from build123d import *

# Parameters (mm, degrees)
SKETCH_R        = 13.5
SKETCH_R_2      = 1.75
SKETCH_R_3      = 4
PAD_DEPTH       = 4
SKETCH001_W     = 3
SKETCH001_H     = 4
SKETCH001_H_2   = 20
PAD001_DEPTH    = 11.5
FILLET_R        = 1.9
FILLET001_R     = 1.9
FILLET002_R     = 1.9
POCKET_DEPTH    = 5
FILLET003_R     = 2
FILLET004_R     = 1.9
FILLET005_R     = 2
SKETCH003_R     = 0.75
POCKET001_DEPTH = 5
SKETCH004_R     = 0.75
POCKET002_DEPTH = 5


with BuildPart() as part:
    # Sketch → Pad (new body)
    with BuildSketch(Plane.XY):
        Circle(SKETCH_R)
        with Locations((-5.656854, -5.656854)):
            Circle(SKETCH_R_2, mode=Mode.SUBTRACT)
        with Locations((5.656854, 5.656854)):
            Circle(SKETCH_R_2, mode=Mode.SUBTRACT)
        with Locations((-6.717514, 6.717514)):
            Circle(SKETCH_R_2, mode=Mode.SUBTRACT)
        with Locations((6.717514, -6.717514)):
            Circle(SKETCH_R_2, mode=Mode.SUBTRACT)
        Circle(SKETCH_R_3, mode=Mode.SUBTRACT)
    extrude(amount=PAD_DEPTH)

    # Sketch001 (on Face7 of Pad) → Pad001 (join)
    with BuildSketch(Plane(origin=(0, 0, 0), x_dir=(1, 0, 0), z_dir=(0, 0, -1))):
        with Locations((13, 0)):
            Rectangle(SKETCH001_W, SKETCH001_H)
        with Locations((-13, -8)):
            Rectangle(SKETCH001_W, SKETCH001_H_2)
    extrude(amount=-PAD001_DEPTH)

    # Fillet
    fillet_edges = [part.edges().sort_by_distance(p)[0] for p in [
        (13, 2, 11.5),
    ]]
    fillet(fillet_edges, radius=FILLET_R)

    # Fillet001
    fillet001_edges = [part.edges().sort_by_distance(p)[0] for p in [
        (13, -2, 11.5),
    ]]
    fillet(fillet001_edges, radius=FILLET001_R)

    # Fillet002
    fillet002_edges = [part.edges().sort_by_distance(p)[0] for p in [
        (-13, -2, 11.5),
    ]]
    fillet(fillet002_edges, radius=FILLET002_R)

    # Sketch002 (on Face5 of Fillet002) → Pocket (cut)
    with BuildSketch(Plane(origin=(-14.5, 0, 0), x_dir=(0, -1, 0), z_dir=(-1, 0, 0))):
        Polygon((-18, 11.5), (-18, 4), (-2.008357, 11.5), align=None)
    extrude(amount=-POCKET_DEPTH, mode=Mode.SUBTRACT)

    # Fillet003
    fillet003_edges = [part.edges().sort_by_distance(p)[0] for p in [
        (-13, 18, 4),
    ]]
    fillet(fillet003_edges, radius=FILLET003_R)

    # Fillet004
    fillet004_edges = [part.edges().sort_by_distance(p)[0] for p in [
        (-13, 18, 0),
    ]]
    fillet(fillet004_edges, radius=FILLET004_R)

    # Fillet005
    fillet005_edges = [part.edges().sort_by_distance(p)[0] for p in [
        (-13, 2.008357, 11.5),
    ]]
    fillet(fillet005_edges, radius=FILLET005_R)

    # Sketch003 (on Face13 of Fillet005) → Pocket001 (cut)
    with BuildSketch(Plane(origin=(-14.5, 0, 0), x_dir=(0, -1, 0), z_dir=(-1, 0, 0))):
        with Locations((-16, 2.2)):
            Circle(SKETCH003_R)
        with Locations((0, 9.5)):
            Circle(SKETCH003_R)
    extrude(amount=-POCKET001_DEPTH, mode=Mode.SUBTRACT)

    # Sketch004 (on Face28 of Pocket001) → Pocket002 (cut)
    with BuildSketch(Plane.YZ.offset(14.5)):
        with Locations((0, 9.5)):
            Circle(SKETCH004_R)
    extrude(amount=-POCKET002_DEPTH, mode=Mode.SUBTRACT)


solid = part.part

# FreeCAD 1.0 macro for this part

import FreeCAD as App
import Part
import Sketcher

V = App.Vector


def edges_at(feature, points):
    """Names of the edges that pass closest to the given points."""
    edges = feature.Shape.Edges
    near = lambda p: min(range(len(edges)), key=lambda i: edges[i].distToShape(Part.Vertex(*p))[0])
    return sorted({f"Edge{near(p) + 1}" for p in points})


def add_polygon(sketch, points):
    """Adds a closed chain of lines whose ends are joined by coincident constraints."""
    first, n = sketch.GeometryCount, len(points)
    for a, b in zip(points, points[1:] + points[:1]):
        sketch.addGeometry(Part.LineSegment(App.Vector(*a, 0), App.Vector(*b, 0)), False)
    for i in range(n):
        sketch.addConstraint(Sketcher.Constraint("Coincident", first + i, 2, first + (i + 1) % n, 1))

doc = App.newDocument("Part")
params = doc.addObject("Spreadsheet::Sheet", "Params")
for row, (alias, value) in enumerate([
    ("sketch1_diameter", "27 mm"),
    ("sketch1_diameter2", "8 mm"),
    ("sketch1_diameter3", "3.5 mm"),
    ("pad1_length", "4 mm"),
    ("sketch2_width", "3 mm"),
    ("sketch2_height", "4 mm"),
    ("sketch2_height2", "20 mm"),
    ("pad2_length", "11.5 mm"),
    ("fillet_radius", "1.9 mm"),
    ("fillet2_radius", "1.9 mm"),
    ("fillet3_radius", "1.9 mm"),
    ("sketch3_height", "7.5 mm"),
    ("pocket1_length", "5 mm"),
    ("fillet4_radius", "2 mm"),
    ("fillet5_radius", "1.9 mm"),
    ("fillet6_radius", "2 mm"),
    ("sketch4_diameter", "1.5 mm"),
    ("pocket2_length", "5 mm"),
    ("sketch5_diameter", "1.5 mm"),
    ("pocket3_length", "5 mm"),
], start=1):
    params.set(f"A{row}", alias)
    params.set(f"B{row}", "=" + value)
    params.setAlias(f"B{row}", alias)

body = doc.addObject("PartDesign::Body", "Body")

# Sketch on XY plane
sketch1 = doc.addObject("Sketcher::SketchObject", "Sketch")
body.addObject(sketch1)
sketch1.AttachmentSupport = (doc.XY_Plane, [""])
sketch1.MapMode = "FlatFace"
sketch1.addGeometry(Part.Circle(V(0, 0, 0), V(0, 0, 1), 13.5), False)
sketch1.addGeometry(Part.Circle(V(-5.7, -5.7, 0), V(0, 0, 1), 1.8), False)
sketch1.addGeometry(Part.Circle(V(6.7, -6.7, 0), V(0, 0, 1), 1.8), False)
sketch1.addGeometry(Part.Circle(V(-6.7, 6.7, 0), V(0, 0, 1), 1.8), False)
sketch1.addGeometry(Part.Circle(V(0, 0, 0), V(0, 0, 1), 4), False)
sketch1.addGeometry(Part.Circle(V(5.7, 5.7, 0), V(0, 0, 1), 1.8), False)
sketch1.addConstraint(Sketcher.Constraint("Coincident", 0, 3, -1, 1))
sketch1.addConstraint(Sketcher.Constraint("Coincident", 4, 3, -1, 1))
sketch1.addConstraint(Sketcher.Constraint("Equal", 1, 2))
sketch1.addConstraint(Sketcher.Constraint("Equal", 2, 3))
sketch1.addConstraint(Sketcher.Constraint("Equal", 3, 5))
sketch1.addConstraint(Sketcher.Constraint("Symmetric", 2, 3, 3, 3, -1, 1))
sketch1.addConstraint(Sketcher.Constraint("Symmetric", 1, 3, 5, 3, -1, 1))
sketch1.addConstraint(Sketcher.Constraint("Diameter", 0, 27.0))
sketch1.addConstraint(Sketcher.Constraint("Diameter", 4, 8.0))
sketch1.addConstraint(Sketcher.Constraint("Diameter", 1, 3.5))
sketch1.addConstraint(Sketcher.Constraint("DistanceY", 2, 3, 1, 3, 1.06066))
sketch1.addConstraint(Sketcher.Constraint("DistanceX", 3, 3, 1, 3, 1.06066))
sketch1.addConstraint(Sketcher.Constraint("DistanceX", 3, 3, 2, 3, 13.435028))
sketch1.addConstraint(Sketcher.Constraint("DistanceY", 2, 3, 3, 3, 13.435028))
sketch1.setExpression("Constraints[7]", "Params.sketch1_diameter")
sketch1.setExpression("Constraints[8]", "Params.sketch1_diameter2")
sketch1.setExpression("Constraints[9]", "Params.sketch1_diameter3")
pad1 = doc.addObject("PartDesign::Pad", "Pad")
body.addObject(pad1)
pad1.Profile = sketch1
pad1.setExpression("Length", "Params.pad1_length")

# Sketch on XY plane
sketch2 = doc.addObject("Sketcher::SketchObject", "Sketch001")
body.addObject(sketch2)
sketch2.AttachmentSupport = (doc.XY_Plane, [""])
sketch2.MapMode = "FlatFace"
add_polygon(sketch2, [(11.5, -2), (11.5, 2), (14.5, 2), (14.5, -2)])  # lines 0-3
add_polygon(sketch2, [(-14.5, -2), (-14.5, 18), (-11.5, 18), (-11.5, -2)])  # lines 4-7
sketch2.addConstraint(Sketcher.Constraint("Vertical", 0))
sketch2.addConstraint(Sketcher.Constraint("Horizontal", 1))
sketch2.addConstraint(Sketcher.Constraint("Vertical", 2))
sketch2.addConstraint(Sketcher.Constraint("Horizontal", 3))
sketch2.addConstraint(Sketcher.Constraint("Vertical", 4))
sketch2.addConstraint(Sketcher.Constraint("Horizontal", 5))
sketch2.addConstraint(Sketcher.Constraint("Vertical", 6))
sketch2.addConstraint(Sketcher.Constraint("Horizontal", 7))
sketch2.addConstraint(Sketcher.Constraint("Symmetric", 0, 2, 6, 2, -1, 1))
sketch2.addConstraint(Sketcher.Constraint("Symmetric", 2, 2, 7, 2, -2))
sketch2.addConstraint(Sketcher.Constraint("DistanceX", 1, 1, 1, 2, 3.0))
sketch2.addConstraint(Sketcher.Constraint("DistanceY", 0, 1, 0, 2, 4.0))
sketch2.addConstraint(Sketcher.Constraint("DistanceY", 4, 1, 4, 2, 20.0))
sketch2.addConstraint(Sketcher.Constraint("DistanceX", 4, 2, 0, 2, 26.0))
sketch2.setExpression("Constraints[18]", "Params.sketch2_width")
sketch2.setExpression("Constraints[19]", "Params.sketch2_height")
sketch2.setExpression("Constraints[20]", "Params.sketch2_height2")
pad2 = doc.addObject("PartDesign::Pad", "Pad001")
body.addObject(pad2)
pad2.Profile = sketch2
pad2.setExpression("Length", "Params.pad2_length")
doc.recompute()

fillet = doc.addObject("PartDesign::Fillet", "Fillet")
body.addObject(fillet)
fillet.Base = (pad2, edges_at(pad2, [(13, 2, 11.5)]))
fillet.setExpression("Radius", "Params.fillet_radius")
doc.recompute()

fillet2 = doc.addObject("PartDesign::Fillet", "Fillet001")
body.addObject(fillet2)
fillet2.Base = (fillet, edges_at(fillet, [(13, -2, 11.5)]))
fillet2.setExpression("Radius", "Params.fillet2_radius")
doc.recompute()

fillet3 = doc.addObject("PartDesign::Fillet", "Fillet002")
body.addObject(fillet3)
fillet3.Base = (fillet2, edges_at(fillet2, [(-13, -2, 11.5)]))
fillet3.setExpression("Radius", "Params.fillet3_radius")

# Sketch on YZ plane
sketch3 = doc.addObject("Sketcher::SketchObject", "Sketch002")
body.addObject(sketch3)
sketch3.AttachmentSupport = (doc.YZ_Plane, [""])
sketch3.MapMode = "FlatFace"
sketch3.AttachmentOffset = App.Placement(V(0, 0, -14.5), App.Rotation())
add_polygon(sketch3, [(18, 12), (18, 4), (2, 12)])  # lines 0-2
sketch3.addConstraint(Sketcher.Constraint("Vertical", 0))
sketch3.addConstraint(Sketcher.Constraint("Horizontal", 2))
sketch3.addConstraint(Sketcher.Constraint("DistanceY", 0, 2, 0, 1, 7.5))
sketch3.addConstraint(Sketcher.Constraint("DistanceX", -1, 1, 0, 2, 18.0))
sketch3.addConstraint(Sketcher.Constraint("DistanceY", -1, 1, 0, 2, 4.0))
sketch3.addConstraint(Sketcher.Constraint("Distance", 1, 17.66303))
sketch3.setExpression("Constraints[5]", "Params.sketch3_height")
pocket1 = doc.addObject("PartDesign::Pocket", "Pocket")
body.addObject(pocket1)
pocket1.Profile = sketch3
pocket1.setExpression("Length", "Params.pocket1_length")
pocket1.Reversed = True
doc.recompute()

fillet4 = doc.addObject("PartDesign::Fillet", "Fillet003")
body.addObject(fillet4)
fillet4.Base = (pocket1, edges_at(pocket1, [(-13, 18, 4)]))
fillet4.setExpression("Radius", "Params.fillet4_radius")
doc.recompute()

fillet5 = doc.addObject("PartDesign::Fillet", "Fillet004")
body.addObject(fillet5)
fillet5.Base = (fillet4, edges_at(fillet4, [(-13, 18, 0)]))
fillet5.setExpression("Radius", "Params.fillet5_radius")
doc.recompute()

fillet6 = doc.addObject("PartDesign::Fillet", "Fillet005")
body.addObject(fillet6)
fillet6.Base = (fillet5, edges_at(fillet5, [(-13, 2.008, 11.5)]))
fillet6.setExpression("Radius", "Params.fillet6_radius")

# Sketch on YZ plane
sketch4 = doc.addObject("Sketcher::SketchObject", "Sketch003")
body.addObject(sketch4)
sketch4.AttachmentSupport = (doc.YZ_Plane, [""])
sketch4.MapMode = "FlatFace"
sketch4.AttachmentOffset = App.Placement(V(0, 0, -14.5), App.Rotation())
sketch4.addGeometry(Part.Circle(V(16, 2.2, 0), V(0, 0, 1), 0.8), False)
sketch4.addGeometry(Part.Circle(V(0, 9.5, 0), V(0, 0, 1), 0.8), False)
sketch4.addConstraint(Sketcher.Constraint("Equal", 0, 1))
sketch4.addConstraint(Sketcher.Constraint("PointOnObject", 1, 3, -2))
sketch4.addConstraint(Sketcher.Constraint("Diameter", 0, 1.5))
sketch4.addConstraint(Sketcher.Constraint("DistanceX", -1, 1, 0, 3, 16.0))
sketch4.addConstraint(Sketcher.Constraint("DistanceY", -1, 1, 0, 3, 2.2))
sketch4.addConstraint(Sketcher.Constraint("DistanceY", -1, 1, 1, 3, 9.5))
sketch4.setExpression("Constraints[2]", "Params.sketch4_diameter")
pocket2 = doc.addObject("PartDesign::Pocket", "Pocket001")
body.addObject(pocket2)
pocket2.Profile = sketch4
pocket2.setExpression("Length", "Params.pocket2_length")
pocket2.Reversed = True

# Sketch on YZ plane
sketch5 = doc.addObject("Sketcher::SketchObject", "Sketch004")
body.addObject(sketch5)
sketch5.AttachmentSupport = (doc.YZ_Plane, [""])
sketch5.MapMode = "FlatFace"
sketch5.AttachmentOffset = App.Placement(V(0, 0, 14.5), App.Rotation())
sketch5.addGeometry(Part.Circle(V(0, 9.5, 0), V(0, 0, 1), 0.8), False)
sketch5.addConstraint(Sketcher.Constraint("PointOnObject", 0, 3, -2))
sketch5.addConstraint(Sketcher.Constraint("Diameter", 0, 1.5))
sketch5.addConstraint(Sketcher.Constraint("DistanceY", -1, 1, 0, 3, 9.5))
sketch5.setExpression("Constraints[1]", "Params.sketch5_diameter")
pocket3 = doc.addObject("PartDesign::Pocket", "Pocket002")
body.addObject(pocket3)
pocket3.Profile = sketch5
pocket3.setExpression("Length", "Params.pocket3_length")

doc.recompute()
